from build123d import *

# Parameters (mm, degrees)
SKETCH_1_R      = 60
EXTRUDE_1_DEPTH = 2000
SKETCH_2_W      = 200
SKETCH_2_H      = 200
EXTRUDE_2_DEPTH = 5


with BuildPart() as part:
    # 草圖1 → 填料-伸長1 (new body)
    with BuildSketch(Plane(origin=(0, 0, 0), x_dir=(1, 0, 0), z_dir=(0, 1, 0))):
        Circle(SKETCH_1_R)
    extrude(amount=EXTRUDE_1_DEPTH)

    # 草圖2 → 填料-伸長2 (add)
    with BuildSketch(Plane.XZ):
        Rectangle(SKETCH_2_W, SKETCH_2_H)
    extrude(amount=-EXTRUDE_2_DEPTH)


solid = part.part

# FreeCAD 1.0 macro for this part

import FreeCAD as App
import Part
import Sketcher

V = App.Vector

doc = App.newDocument("Part")
params = doc.addObject("Spreadsheet::Sheet", "Params")
for row, (alias, value) in enumerate([
    ("sketch1_diameter", "120 mm"),
    ("pad1_length", "2000 mm"),
    ("sketch2_width", "200 mm"),
    ("pad2_length", "5 mm"),
], start=1):
    params.set(f"A{row}", alias)
    params.set(f"B{row}", "=" + value)
    params.setAlias(f"B{row}", alias)

body = doc.addObject("PartDesign::Body", "Body")

# Sketch on XZ plane
sketch1 = body.newObject("Sketcher::SketchObject", "Sketch")
sketch1.AttachmentSupport = (doc.getObject("XZ_Plane"), [""])
sketch1.MapMode = "FlatFace"
sketch1.addGeometry(Part.Circle(V(0, 0, 0), V(0, 0, 1), 60), False)
sketch1.addConstraint(Sketcher.Constraint("Coincident", 0, 3, -1, 1))
sketch1.addConstraint(Sketcher.Constraint("Diameter", 0, 120.0))
sketch1.setExpression("Constraints[1]", "Params.sketch1_diameter")
pad1 = body.newObject("PartDesign::Pad", "Pad")
pad1.Profile = sketch1
pad1.setExpression("Length", "Params.pad1_length")
pad1.Reversed = True

# Sketch on XZ plane
sketch2 = body.newObject("Sketcher::SketchObject", "Sketch001")
sketch2.AttachmentSupport = (doc.getObject("XZ_Plane"), [""])
sketch2.MapMode = "FlatFace"
sketch2.addGeometry(Part.LineSegment(V(-100, 100, 0), V(-100, -100, 0)), False)
sketch2.addGeometry(Part.LineSegment(V(-100, -100, 0), V(100, -100, 0)), False)
sketch2.addGeometry(Part.LineSegment(V(100, -100, 0), V(100, 100, 0)), False)
sketch2.addGeometry(Part.LineSegment(V(100, 100, 0), V(-100, 100, 0)), False)
sketch2.addConstraint(Sketcher.Constraint("Coincident", 0, 2, 1, 1))
sketch2.addConstraint(Sketcher.Constraint("Coincident", 1, 2, 2, 1))
sketch2.addConstraint(Sketcher.Constraint("Coincident", 2, 2, 3, 1))
sketch2.addConstraint(Sketcher.Constraint("Coincident", 3, 2, 0, 1))
sketch2.addConstraint(Sketcher.Constraint("Vertical", 0))
sketch2.addConstraint(Sketcher.Constraint("Horizontal", 1))
sketch2.addConstraint(Sketcher.Constraint("Vertical", 2))
sketch2.addConstraint(Sketcher.Constraint("Horizontal", 3))
sketch2.addConstraint(Sketcher.Constraint("Symmetric", 0, 2, 2, 2, -1, 1))
sketch2.addConstraint(Sketcher.Constraint("Equal", 3, 0))
sketch2.addConstraint(Sketcher.Constraint("DistanceX", 1, 1, 1, 2, 200.0))
sketch2.setExpression("Constraints[10]", "Params.sketch2_width")
pad2 = body.newObject("PartDesign::Pad", "Pad001")
pad2.Profile = sketch2
pad2.setExpression("Length", "Params.pad2_length")
pad2.Reversed = True

doc.recompute()
